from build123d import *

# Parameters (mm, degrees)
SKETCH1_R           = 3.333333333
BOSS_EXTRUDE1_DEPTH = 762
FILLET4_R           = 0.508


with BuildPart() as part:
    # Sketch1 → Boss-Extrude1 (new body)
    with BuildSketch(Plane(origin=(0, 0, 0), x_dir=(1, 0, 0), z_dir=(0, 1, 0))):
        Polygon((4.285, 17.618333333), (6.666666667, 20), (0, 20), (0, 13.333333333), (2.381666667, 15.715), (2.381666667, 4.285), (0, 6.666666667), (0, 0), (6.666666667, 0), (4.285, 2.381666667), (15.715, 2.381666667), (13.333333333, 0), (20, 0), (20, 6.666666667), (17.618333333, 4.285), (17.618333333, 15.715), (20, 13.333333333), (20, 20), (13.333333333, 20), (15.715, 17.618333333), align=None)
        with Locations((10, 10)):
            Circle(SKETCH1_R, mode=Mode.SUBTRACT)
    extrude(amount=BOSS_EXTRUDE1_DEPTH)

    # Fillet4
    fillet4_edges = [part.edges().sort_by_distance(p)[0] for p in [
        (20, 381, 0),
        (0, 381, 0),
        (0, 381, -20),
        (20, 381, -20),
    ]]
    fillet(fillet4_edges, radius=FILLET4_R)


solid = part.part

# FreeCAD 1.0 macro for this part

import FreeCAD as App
import Part
import Sketcher

V = App.Vector
Q = App.Units.Quantity


def edges_at(feature, points):
    """Names of the edges that pass closest to the given points."""
    edges = feature.Shape.Edges
    near = lambda p: min(range(len(edges)), key=lambda i: edges[i].distToShape(Part.Vertex(*p))[0])
    return sorted({f"Edge{near(p) + 1}" for p in points})

doc = App.newDocument("Part")
body = doc.addObject("PartDesign::Body", "Body")

# Sketch on XZ plane
sketch1 = doc.addObject("Sketcher::SketchObject", "Sketch")
body.addObject(sketch1)
sketch1.AttachmentSupport = (doc.XZ_Plane, [""])
sketch1.MapMode = "FlatFace"
sketch1.addGeometry([
    Part.LineSegment(V(4.285, -17.618333, 0), V(6.666667, -20, 0)),  # 0
    Part.LineSegment(V(6.666667, -20, 0), V(0, -20, 0)),  # 1
    Part.LineSegment(V(0, -20, 0), V(0, -13.333333, 0)),  # 2
    Part.LineSegment(V(0, -13.333333, 0), V(2.381667, -15.715, 0)),  # 3
    Part.LineSegment(V(2.381667, -15.715, 0), V(2.381667, -4.285, 0)),  # 4
    Part.LineSegment(V(2.381667, -4.285, 0), V(0, -6.666667, 0)),  # 5
    Part.LineSegment(V(0, -6.666667, 0), V(0, 0, 0)),  # 6
    Part.LineSegment(V(0, 0, 0), V(6.666667, 0, 0)),  # 7
    Part.LineSegment(V(6.666667, 0, 0), V(4.285, -2.381667, 0)),  # 8
    Part.LineSegment(V(4.285, -2.381667, 0), V(15.715, -2.381667, 0)),  # 9
    Part.LineSegment(V(15.715, -2.381667, 0), V(13.333333, 0, 0)),  # 10
    Part.LineSegment(V(13.333333, 0, 0), V(20, 0, 0)),  # 11
    Part.LineSegment(V(20, 0, 0), V(20, -6.666667, 0)),  # 12
    Part.LineSegment(V(20, -6.666667, 0), V(17.618333, -4.285, 0)),  # 13
    Part.LineSegment(V(17.618333, -4.285, 0), V(17.618333, -15.715, 0)),  # 14
    Part.LineSegment(V(17.618333, -15.715, 0), V(20, -13.333333, 0)),  # 15
    Part.LineSegment(V(20, -13.333333, 0), V(20, -20, 0)),  # 16
    Part.LineSegment(V(20, -20, 0), V(13.333333, -20, 0)),  # 17
    Part.LineSegment(V(13.333333, -20, 0), V(15.715, -17.618333, 0)),  # 18
    Part.LineSegment(V(15.715, -17.618333, 0), V(4.285, -17.618333, 0)),  # 19
    Part.Circle(V(10, -10, 0), V(0, 0, 1), 3.333333),  # 20
], False)
sketch1.addConstraint([
    Sketcher.Constraint("Coincident", 0, 2, 1, 1),
    Sketcher.Constraint("Coincident", 1, 2, 2, 1),
    Sketcher.Constraint("Coincident", 2, 2, 3, 1),
    Sketcher.Constraint("Coincident", 3, 2, 4, 1),
    Sketcher.Constraint("Coincident", 4, 2, 5, 1),
    Sketcher.Constraint("Coincident", 5, 2, 6, 1),
    Sketcher.Constraint("Coincident", 6, 2, 7, 1),
    Sketcher.Constraint("Coincident", 7, 2, 8, 1),
    Sketcher.Constraint("Coincident", 8, 2, 9, 1),
    Sketcher.Constraint("Coincident", 9, 2, 10, 1),
    Sketcher.Constraint("Coincident", 10, 2, 11, 1),
    Sketcher.Constraint("Coincident", 11, 2, 12, 1),
    Sketcher.Constraint("Coincident", 12, 2, 13, 1),
    Sketcher.Constraint("Coincident", 13, 2, 14, 1),
    Sketcher.Constraint("Coincident", 14, 2, 15, 1),
    Sketcher.Constraint("Coincident", 15, 2, 16, 1),
    Sketcher.Constraint("Coincident", 16, 2, 17, 1),
    Sketcher.Constraint("Coincident", 17, 2, 18, 1),
    Sketcher.Constraint("Coincident", 18, 2, 19, 1),
    Sketcher.Constraint("Coincident", 19, 2, 0, 1),
    Sketcher.Constraint("Horizontal", 1),
    Sketcher.Constraint("Vertical", 2),
    Sketcher.Constraint("Vertical", 4),
    Sketcher.Constraint("Vertical", 6),
    Sketcher.Constraint("Horizontal", 7),
    Sketcher.Constraint("Horizontal", 9),
    Sketcher.Constraint("Horizontal", 11),
    Sketcher.Constraint("Vertical", 12),
    Sketcher.Constraint("Vertical", 14),
    Sketcher.Constraint("Vertical", 16),
    Sketcher.Constraint("Horizontal", 17),
    Sketcher.Constraint("Horizontal", 19),
    Sketcher.Constraint("Coincident", 6, 2, -1, 1),
    Sketcher.Constraint("PointOnObject", 1, 2, -2),
    Sketcher.Constraint("PointOnObject", 10, 2, -1),
    Sketcher.Constraint("Parallel", 0, 3),
    Sketcher.Constraint("Perpendicular", 3, 5),
    Sketcher.Constraint("Parallel", 5, 8),
    Sketcher.Constraint("Perpendicular", 8, 10),
    Sketcher.Constraint("Parallel", 10, 13),
    Sketcher.Constraint("Perpendicular", 13, 15),
    Sketcher.Constraint("Parallel", 15, 18),
    Sketcher.Constraint("Horizontal", 5, 2, 12, 2),
    Sketcher.Constraint("Horizontal", 4, 2, 13, 2),
    Sketcher.Constraint("Horizontal", 3, 2, 14, 2),
    Sketcher.Constraint("Horizontal", 2, 2, 15, 2),
    Sketcher.Constraint("Horizontal", 1, 2, 16, 2),
    Sketcher.Constraint("Vertical", 0, 2, 7, 2),
    Sketcher.Constraint("Vertical", 12, 2, 15, 2),
    Sketcher.Constraint("Vertical", 10, 2, 17, 2),
    Sketcher.Constraint("Vertical", 9, 2, 18, 2),
    Sketcher.Constraint("Equal", 7, 11),
    Sketcher.Constraint("Equal", 17, 2),
    Sketcher.Constraint("Equal", 19, 4),
    Sketcher.Constraint("Equal", 2, 6),
    Sketcher.Constraint("Equal", 0, 3),
    Sketcher.Constraint("DistanceX", 9, 1, 9, 2, Q("0.45 in")),
    Sketcher.Constraint("DistanceY", 3, 2, 20, 3, Q("0.225 in")),
    Sketcher.Constraint("DistanceX", 8, 2, 20, 3, Q("0.225 in")),
    Sketcher.Constraint("Diameter", 20, 6.666667),
    Sketcher.Constraint("DistanceX", -1, 1, 20, 3, 10.0),
    Sketcher.Constraint("DistanceX", 1, 2, 1, 1, 6.666667),
])
pad1 = doc.addObject("PartDesign::Pad", "Pad")
body.addObject(pad1)
pad1.Profile = sketch1
pad1.Length = Q("30 in")
pad1.Reversed = True
doc.recompute()

fillet = doc.addObject("PartDesign::Fillet", "Fillet")
body.addObject(fillet)
fillet.Base = (pad1, edges_at(pad1, [
    (20, 381, 0),
    (0, 381, 0),
    (0, 381, -20),
    (20, 381, -20),
]))
fillet.Radius = Q("0.02 in")

doc.recompute()
